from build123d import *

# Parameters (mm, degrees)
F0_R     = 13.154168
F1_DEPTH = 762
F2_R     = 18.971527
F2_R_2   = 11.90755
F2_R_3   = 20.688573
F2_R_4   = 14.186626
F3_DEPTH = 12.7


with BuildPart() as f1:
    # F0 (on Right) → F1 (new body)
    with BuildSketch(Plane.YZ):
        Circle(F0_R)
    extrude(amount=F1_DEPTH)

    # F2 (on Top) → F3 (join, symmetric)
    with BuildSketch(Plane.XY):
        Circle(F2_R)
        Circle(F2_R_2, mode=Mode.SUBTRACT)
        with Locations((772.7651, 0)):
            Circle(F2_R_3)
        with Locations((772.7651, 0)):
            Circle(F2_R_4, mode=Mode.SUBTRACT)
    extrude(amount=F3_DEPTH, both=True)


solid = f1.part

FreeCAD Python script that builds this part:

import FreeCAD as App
import Part
import Sketcher

V = App.Vector
Q = App.Units.Quantity

doc = App.newDocument("Part")
body = doc.addObject("PartDesign::Body", "Body")

sketch1 = body.newObject("Sketcher::SketchObject", "Sketch")
sketch1.AttachmentSupport = (doc.getObject("YZ_Plane"), [""])
sketch1.MapMode = "FlatFace"
sketch1.addGeometry(Part.Circle(V(0, 0, 0), V(0, 0, 1), 13.154168), False)
sketch1.addConstraint([
    Sketcher.Constraint("Coincident", 0, 3, -1, 1),
    Sketcher.Constraint("Diameter", 0, 26.308336),
])
pad1 = body.newObject("PartDesign::Pad", "Pad")
pad1.Profile = sketch1
pad1.Length = Q("30 in")

sketch2 = body.newObject("Sketcher::SketchObject", "Sketch001")
sketch2.AttachmentSupport = (doc.getObject("XY_Plane"), [""])
sketch2.MapMode = "FlatFace"
sketch2.addGeometry([
    Part.Circle(V(0, 0, 0), V(0, 0, 1), 18.971527),
    Part.Circle(V(0, 0, 0), V(0, 0, 1), 11.90755),
    Part.Circle(V(772.7651, 0, 0), V(0, 0, 1), 20.688573),
    Part.Circle(V(772.7651, 0, 0), V(0, 0, 1), 14.186626),
], False)
sketch2.addConstraint([
    Sketcher.Constraint("Coincident", 0, 3, -1, 1),
    Sketcher.Constraint("Coincident", 1, 3, -1, 1),
    Sketcher.Constraint("Coincident", 3, 3, 2, 3),
    Sketcher.Constraint("PointOnObject", 2, 3, -1),
    Sketcher.Constraint("Diameter", 1, 23.8151),
    Sketcher.Constraint("Diameter", 0, 37.943054),
    Sketcher.Constraint("Diameter", 2, 41.377146),
    Sketcher.Constraint("Diameter", 3, 28.373252),
    Sketcher.Constraint("DistanceX", -1, 1, 2, 3, 772.7651),
])
pad2 = body.newObject("PartDesign::Pad", "Pad001")
pad2.Profile = sketch2
pad2.Length = Q("1 in")
pad2.Midplane = True

doc.recompute()
